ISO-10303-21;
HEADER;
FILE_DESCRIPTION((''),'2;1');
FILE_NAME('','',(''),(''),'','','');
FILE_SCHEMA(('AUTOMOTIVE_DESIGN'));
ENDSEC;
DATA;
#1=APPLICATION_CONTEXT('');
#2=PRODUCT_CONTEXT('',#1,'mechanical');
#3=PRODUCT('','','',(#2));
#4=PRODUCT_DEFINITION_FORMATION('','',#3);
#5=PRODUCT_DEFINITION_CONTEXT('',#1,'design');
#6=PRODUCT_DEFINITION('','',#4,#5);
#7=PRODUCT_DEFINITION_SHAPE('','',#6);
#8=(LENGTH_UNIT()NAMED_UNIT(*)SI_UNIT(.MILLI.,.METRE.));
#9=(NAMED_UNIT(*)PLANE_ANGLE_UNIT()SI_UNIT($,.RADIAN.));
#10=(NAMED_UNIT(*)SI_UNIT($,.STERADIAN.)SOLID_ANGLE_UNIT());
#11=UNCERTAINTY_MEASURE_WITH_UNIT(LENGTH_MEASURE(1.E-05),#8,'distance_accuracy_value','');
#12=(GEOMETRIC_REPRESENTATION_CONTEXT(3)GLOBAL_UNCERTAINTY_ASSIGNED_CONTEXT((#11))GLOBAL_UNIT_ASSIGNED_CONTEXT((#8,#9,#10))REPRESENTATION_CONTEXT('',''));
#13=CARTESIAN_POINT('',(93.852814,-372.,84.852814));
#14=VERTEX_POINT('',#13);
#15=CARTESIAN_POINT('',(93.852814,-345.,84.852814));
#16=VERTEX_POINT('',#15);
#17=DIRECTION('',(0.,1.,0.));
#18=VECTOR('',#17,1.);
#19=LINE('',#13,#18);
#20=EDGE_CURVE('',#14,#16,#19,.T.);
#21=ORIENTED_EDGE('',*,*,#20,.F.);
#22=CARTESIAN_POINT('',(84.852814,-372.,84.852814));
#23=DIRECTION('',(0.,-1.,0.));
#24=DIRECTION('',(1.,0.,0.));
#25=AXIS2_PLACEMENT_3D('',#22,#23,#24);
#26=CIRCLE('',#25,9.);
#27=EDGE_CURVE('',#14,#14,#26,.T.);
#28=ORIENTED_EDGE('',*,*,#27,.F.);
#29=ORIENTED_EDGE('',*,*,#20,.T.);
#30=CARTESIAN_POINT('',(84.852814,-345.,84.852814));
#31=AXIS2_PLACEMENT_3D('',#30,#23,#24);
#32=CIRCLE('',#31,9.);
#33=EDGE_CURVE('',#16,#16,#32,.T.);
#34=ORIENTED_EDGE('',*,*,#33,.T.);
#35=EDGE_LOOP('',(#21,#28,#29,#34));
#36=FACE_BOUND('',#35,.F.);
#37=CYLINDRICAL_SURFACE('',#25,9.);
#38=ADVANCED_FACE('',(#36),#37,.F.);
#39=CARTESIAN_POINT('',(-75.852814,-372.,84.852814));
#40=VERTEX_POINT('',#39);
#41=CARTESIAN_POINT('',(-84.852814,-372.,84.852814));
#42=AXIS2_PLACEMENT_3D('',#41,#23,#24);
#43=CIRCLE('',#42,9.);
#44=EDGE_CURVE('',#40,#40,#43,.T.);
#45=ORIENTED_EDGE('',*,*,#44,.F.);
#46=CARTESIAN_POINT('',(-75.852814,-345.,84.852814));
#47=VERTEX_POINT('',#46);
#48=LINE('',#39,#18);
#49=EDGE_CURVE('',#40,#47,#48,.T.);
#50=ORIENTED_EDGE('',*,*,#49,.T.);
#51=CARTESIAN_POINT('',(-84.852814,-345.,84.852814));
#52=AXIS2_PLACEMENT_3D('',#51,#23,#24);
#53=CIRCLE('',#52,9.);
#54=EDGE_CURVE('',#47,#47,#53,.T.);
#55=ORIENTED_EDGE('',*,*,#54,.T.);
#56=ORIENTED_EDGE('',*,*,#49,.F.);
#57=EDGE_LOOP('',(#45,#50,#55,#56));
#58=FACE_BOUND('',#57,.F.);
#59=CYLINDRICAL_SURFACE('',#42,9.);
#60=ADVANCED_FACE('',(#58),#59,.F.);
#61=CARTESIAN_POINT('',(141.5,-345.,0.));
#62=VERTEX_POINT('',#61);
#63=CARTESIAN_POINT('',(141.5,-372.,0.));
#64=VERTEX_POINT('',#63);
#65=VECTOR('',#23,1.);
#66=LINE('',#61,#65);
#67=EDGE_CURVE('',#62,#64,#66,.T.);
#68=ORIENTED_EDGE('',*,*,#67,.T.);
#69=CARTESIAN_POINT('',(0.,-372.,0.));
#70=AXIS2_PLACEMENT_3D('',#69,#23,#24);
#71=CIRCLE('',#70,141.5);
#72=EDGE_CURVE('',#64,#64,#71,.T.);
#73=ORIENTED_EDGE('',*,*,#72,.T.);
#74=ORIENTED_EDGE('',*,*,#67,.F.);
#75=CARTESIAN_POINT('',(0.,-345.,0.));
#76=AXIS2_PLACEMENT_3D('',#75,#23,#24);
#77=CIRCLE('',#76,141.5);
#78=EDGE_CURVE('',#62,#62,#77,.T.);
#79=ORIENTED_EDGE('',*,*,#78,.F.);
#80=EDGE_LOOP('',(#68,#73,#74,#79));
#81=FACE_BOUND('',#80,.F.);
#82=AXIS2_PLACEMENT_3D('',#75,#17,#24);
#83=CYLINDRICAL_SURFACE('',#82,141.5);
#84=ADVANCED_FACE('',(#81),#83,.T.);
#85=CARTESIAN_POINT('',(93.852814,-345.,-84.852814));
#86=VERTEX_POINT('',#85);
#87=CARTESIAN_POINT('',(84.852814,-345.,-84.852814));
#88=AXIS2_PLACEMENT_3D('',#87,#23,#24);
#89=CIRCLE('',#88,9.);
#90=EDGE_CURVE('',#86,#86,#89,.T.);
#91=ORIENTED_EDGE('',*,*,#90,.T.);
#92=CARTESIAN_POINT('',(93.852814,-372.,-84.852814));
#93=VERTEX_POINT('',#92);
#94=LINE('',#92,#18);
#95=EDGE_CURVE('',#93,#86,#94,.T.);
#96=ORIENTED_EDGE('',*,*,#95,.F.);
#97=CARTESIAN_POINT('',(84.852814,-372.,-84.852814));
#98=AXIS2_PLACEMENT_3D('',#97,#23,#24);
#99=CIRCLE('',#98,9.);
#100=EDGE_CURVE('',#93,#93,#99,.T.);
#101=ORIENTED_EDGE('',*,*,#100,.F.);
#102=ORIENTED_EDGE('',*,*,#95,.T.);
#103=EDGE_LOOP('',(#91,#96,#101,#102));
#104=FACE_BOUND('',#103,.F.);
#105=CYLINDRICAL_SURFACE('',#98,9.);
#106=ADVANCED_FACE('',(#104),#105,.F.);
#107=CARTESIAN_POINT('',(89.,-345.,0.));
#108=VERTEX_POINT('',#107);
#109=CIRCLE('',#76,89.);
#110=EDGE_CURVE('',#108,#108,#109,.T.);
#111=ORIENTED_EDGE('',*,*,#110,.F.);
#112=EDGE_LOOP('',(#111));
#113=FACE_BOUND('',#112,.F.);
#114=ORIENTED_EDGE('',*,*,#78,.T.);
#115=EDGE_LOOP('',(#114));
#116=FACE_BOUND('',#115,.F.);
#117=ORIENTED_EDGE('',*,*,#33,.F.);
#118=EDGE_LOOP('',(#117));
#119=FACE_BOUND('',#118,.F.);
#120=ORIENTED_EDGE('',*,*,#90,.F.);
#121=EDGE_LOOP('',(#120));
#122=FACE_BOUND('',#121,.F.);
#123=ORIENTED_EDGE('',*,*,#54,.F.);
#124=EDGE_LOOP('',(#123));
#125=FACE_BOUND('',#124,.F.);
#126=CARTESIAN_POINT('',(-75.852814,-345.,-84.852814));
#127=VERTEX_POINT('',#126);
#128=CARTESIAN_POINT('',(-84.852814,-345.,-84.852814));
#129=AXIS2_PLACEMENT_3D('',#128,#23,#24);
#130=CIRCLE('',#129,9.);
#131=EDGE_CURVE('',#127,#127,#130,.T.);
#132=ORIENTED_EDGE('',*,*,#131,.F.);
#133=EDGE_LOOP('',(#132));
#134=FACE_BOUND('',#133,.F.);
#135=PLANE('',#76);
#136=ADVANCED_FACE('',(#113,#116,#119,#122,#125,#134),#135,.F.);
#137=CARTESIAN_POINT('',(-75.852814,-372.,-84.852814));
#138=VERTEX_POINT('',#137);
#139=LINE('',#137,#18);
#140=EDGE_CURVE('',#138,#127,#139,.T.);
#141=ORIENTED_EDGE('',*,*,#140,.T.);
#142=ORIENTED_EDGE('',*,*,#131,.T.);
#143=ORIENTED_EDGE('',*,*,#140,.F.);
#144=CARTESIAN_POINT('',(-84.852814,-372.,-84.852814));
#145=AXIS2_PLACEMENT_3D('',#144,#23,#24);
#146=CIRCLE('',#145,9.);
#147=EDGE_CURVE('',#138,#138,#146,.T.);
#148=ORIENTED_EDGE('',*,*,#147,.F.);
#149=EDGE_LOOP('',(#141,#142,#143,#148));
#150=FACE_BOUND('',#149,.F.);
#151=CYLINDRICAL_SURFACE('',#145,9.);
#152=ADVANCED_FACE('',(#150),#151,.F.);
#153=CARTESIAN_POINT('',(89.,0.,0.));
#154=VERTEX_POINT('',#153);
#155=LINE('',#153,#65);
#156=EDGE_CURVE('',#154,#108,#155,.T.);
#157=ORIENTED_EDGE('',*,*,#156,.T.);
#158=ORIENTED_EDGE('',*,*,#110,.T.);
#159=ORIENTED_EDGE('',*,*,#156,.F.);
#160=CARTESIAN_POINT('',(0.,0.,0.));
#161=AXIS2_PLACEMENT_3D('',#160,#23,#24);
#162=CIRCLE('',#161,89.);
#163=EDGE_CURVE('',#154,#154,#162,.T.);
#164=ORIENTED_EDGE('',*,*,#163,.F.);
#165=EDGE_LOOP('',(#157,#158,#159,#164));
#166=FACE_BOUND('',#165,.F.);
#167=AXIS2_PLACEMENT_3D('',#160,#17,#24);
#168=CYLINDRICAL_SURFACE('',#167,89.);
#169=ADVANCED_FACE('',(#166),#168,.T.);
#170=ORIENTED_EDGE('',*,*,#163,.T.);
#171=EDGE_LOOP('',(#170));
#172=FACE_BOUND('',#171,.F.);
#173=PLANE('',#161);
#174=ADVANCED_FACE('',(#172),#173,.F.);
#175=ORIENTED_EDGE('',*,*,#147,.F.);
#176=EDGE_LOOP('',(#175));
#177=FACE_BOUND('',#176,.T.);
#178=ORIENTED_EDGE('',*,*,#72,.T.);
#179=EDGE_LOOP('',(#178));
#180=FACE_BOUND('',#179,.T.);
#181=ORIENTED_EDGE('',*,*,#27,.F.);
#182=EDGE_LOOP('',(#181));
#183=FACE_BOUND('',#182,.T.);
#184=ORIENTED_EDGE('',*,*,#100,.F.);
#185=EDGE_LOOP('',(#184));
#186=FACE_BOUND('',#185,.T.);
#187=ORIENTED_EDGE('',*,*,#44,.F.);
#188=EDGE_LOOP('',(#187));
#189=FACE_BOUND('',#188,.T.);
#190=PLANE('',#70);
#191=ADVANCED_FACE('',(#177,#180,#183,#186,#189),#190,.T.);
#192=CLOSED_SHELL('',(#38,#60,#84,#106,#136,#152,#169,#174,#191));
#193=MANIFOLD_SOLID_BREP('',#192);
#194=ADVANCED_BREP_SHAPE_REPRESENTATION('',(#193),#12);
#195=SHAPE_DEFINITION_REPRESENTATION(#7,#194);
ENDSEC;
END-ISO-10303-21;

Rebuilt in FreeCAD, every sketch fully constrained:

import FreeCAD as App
import Part
import Sketcher
Q = App.Units.Quantity

doc = App.newDocument("Part")
body = doc.addObject("PartDesign::Body", "Body")

# Sketch on XZ plane
sketch1 = doc.addObject("Sketcher::SketchObject", "Sketch")
body.addObject(sketch1)
sketch1.AttachmentSupport = (doc.XZ_Plane, [""])
sketch1.MapMode = "FlatFace"
sketch1.addGeometry(Part.Circle(App.Vector(0, 0, 0), App.Vector(0, 0, 1), 89), False)
sketch1.addConstraint(Sketcher.Constraint("Coincident", 0, 3, -1, 1))
sketch1.addConstraint(Sketcher.Constraint("Diameter", 0, Q("178 mm")))
pad1 = doc.addObject("PartDesign::Pad", "Pad")
body.addObject(pad1)
pad1.Profile = sketch1
pad1.Length = 345

# Sketch on XZ plane
sketch2 = doc.addObject("Sketcher::SketchObject", "Sketch001")
body.addObject(sketch2)
sketch2.AttachmentSupport = (doc.XZ_Plane, [""])
sketch2.MapMode = "FlatFace"
sketch2.AttachmentOffset = App.Placement(App.Vector(0, 0, 345), App.Rotation())
sketch2.addGeometry(Part.Circle(App.Vector(0, 0, 0), App.Vector(0, 0, 1), 142), False)
sketch2.addConstraint(Sketcher.Constraint("Coincident", 0, 3, -1, 1))
sketch2.addConstraint(Sketcher.Constraint("Diameter", 0, Q("283 mm")))
pad2 = doc.addObject("PartDesign::Pad", "Pad001")
body.addObject(pad2)
pad2.Profile = sketch2
pad2.Length = 27

# Sketch on XZ plane
sketch3 = doc.addObject("Sketcher::SketchObject", "Sketch002")
body.addObject(sketch3)
sketch3.AttachmentSupport = (doc.XZ_Plane, [""])
sketch3.MapMode = "FlatFace"
sketch3.AttachmentOffset = App.Placement(App.Vector(0, 0, 372), App.Rotation())
sketch3.addGeometry(Part.Circle(App.Vector(-85, 85, 0), App.Vector(0, 0, 1), 9), False)
sketch3.addGeometry(Part.Circle(App.Vector(-85, -85, 0), App.Vector(0, 0, 1), 9), False)
sketch3.addGeometry(Part.Circle(App.Vector(85, -85, 0), App.Vector(0, 0, 1), 9), False)
sketch3.addGeometry(Part.Circle(App.Vector(85, 85, 0), App.Vector(0, 0, 1), 9), False)
sketch3.addConstraint(Sketcher.Constraint("Equal", 0, 1))
sketch3.addConstraint(Sketcher.Constraint("Equal", 1, 2))
sketch3.addConstraint(Sketcher.Constraint("Equal", 2, 3))
sketch3.addConstraint(Sketcher.Constraint("Symmetric", 0, 3, 2, 3, -1, 1))
sketch3.addConstraint(Sketcher.Constraint("Symmetric", 1, 3, 3, 3, -1, 1))
sketch3.addConstraint(Sketcher.Constraint("Symmetric", 1, 3, 2, 3, -2))
sketch3.addConstraint(Sketcher.Constraint("Diameter", 0, Q("18 mm")))
sketch3.addConstraint(Sketcher.Constraint("DistanceX", 0, 3, -1, 1, Q("84.852814 mm")))
sketch3.addConstraint(Sketcher.Constraint("DistanceY", -1, 1, 0, 3, Q("84.852814 mm")))
pocket1 = doc.addObject("PartDesign::Pocket", "Pocket")
body.addObject(pocket1)
pocket1.Profile = sketch3
pocket1.Type = "ThroughAll"

doc.recompute()
